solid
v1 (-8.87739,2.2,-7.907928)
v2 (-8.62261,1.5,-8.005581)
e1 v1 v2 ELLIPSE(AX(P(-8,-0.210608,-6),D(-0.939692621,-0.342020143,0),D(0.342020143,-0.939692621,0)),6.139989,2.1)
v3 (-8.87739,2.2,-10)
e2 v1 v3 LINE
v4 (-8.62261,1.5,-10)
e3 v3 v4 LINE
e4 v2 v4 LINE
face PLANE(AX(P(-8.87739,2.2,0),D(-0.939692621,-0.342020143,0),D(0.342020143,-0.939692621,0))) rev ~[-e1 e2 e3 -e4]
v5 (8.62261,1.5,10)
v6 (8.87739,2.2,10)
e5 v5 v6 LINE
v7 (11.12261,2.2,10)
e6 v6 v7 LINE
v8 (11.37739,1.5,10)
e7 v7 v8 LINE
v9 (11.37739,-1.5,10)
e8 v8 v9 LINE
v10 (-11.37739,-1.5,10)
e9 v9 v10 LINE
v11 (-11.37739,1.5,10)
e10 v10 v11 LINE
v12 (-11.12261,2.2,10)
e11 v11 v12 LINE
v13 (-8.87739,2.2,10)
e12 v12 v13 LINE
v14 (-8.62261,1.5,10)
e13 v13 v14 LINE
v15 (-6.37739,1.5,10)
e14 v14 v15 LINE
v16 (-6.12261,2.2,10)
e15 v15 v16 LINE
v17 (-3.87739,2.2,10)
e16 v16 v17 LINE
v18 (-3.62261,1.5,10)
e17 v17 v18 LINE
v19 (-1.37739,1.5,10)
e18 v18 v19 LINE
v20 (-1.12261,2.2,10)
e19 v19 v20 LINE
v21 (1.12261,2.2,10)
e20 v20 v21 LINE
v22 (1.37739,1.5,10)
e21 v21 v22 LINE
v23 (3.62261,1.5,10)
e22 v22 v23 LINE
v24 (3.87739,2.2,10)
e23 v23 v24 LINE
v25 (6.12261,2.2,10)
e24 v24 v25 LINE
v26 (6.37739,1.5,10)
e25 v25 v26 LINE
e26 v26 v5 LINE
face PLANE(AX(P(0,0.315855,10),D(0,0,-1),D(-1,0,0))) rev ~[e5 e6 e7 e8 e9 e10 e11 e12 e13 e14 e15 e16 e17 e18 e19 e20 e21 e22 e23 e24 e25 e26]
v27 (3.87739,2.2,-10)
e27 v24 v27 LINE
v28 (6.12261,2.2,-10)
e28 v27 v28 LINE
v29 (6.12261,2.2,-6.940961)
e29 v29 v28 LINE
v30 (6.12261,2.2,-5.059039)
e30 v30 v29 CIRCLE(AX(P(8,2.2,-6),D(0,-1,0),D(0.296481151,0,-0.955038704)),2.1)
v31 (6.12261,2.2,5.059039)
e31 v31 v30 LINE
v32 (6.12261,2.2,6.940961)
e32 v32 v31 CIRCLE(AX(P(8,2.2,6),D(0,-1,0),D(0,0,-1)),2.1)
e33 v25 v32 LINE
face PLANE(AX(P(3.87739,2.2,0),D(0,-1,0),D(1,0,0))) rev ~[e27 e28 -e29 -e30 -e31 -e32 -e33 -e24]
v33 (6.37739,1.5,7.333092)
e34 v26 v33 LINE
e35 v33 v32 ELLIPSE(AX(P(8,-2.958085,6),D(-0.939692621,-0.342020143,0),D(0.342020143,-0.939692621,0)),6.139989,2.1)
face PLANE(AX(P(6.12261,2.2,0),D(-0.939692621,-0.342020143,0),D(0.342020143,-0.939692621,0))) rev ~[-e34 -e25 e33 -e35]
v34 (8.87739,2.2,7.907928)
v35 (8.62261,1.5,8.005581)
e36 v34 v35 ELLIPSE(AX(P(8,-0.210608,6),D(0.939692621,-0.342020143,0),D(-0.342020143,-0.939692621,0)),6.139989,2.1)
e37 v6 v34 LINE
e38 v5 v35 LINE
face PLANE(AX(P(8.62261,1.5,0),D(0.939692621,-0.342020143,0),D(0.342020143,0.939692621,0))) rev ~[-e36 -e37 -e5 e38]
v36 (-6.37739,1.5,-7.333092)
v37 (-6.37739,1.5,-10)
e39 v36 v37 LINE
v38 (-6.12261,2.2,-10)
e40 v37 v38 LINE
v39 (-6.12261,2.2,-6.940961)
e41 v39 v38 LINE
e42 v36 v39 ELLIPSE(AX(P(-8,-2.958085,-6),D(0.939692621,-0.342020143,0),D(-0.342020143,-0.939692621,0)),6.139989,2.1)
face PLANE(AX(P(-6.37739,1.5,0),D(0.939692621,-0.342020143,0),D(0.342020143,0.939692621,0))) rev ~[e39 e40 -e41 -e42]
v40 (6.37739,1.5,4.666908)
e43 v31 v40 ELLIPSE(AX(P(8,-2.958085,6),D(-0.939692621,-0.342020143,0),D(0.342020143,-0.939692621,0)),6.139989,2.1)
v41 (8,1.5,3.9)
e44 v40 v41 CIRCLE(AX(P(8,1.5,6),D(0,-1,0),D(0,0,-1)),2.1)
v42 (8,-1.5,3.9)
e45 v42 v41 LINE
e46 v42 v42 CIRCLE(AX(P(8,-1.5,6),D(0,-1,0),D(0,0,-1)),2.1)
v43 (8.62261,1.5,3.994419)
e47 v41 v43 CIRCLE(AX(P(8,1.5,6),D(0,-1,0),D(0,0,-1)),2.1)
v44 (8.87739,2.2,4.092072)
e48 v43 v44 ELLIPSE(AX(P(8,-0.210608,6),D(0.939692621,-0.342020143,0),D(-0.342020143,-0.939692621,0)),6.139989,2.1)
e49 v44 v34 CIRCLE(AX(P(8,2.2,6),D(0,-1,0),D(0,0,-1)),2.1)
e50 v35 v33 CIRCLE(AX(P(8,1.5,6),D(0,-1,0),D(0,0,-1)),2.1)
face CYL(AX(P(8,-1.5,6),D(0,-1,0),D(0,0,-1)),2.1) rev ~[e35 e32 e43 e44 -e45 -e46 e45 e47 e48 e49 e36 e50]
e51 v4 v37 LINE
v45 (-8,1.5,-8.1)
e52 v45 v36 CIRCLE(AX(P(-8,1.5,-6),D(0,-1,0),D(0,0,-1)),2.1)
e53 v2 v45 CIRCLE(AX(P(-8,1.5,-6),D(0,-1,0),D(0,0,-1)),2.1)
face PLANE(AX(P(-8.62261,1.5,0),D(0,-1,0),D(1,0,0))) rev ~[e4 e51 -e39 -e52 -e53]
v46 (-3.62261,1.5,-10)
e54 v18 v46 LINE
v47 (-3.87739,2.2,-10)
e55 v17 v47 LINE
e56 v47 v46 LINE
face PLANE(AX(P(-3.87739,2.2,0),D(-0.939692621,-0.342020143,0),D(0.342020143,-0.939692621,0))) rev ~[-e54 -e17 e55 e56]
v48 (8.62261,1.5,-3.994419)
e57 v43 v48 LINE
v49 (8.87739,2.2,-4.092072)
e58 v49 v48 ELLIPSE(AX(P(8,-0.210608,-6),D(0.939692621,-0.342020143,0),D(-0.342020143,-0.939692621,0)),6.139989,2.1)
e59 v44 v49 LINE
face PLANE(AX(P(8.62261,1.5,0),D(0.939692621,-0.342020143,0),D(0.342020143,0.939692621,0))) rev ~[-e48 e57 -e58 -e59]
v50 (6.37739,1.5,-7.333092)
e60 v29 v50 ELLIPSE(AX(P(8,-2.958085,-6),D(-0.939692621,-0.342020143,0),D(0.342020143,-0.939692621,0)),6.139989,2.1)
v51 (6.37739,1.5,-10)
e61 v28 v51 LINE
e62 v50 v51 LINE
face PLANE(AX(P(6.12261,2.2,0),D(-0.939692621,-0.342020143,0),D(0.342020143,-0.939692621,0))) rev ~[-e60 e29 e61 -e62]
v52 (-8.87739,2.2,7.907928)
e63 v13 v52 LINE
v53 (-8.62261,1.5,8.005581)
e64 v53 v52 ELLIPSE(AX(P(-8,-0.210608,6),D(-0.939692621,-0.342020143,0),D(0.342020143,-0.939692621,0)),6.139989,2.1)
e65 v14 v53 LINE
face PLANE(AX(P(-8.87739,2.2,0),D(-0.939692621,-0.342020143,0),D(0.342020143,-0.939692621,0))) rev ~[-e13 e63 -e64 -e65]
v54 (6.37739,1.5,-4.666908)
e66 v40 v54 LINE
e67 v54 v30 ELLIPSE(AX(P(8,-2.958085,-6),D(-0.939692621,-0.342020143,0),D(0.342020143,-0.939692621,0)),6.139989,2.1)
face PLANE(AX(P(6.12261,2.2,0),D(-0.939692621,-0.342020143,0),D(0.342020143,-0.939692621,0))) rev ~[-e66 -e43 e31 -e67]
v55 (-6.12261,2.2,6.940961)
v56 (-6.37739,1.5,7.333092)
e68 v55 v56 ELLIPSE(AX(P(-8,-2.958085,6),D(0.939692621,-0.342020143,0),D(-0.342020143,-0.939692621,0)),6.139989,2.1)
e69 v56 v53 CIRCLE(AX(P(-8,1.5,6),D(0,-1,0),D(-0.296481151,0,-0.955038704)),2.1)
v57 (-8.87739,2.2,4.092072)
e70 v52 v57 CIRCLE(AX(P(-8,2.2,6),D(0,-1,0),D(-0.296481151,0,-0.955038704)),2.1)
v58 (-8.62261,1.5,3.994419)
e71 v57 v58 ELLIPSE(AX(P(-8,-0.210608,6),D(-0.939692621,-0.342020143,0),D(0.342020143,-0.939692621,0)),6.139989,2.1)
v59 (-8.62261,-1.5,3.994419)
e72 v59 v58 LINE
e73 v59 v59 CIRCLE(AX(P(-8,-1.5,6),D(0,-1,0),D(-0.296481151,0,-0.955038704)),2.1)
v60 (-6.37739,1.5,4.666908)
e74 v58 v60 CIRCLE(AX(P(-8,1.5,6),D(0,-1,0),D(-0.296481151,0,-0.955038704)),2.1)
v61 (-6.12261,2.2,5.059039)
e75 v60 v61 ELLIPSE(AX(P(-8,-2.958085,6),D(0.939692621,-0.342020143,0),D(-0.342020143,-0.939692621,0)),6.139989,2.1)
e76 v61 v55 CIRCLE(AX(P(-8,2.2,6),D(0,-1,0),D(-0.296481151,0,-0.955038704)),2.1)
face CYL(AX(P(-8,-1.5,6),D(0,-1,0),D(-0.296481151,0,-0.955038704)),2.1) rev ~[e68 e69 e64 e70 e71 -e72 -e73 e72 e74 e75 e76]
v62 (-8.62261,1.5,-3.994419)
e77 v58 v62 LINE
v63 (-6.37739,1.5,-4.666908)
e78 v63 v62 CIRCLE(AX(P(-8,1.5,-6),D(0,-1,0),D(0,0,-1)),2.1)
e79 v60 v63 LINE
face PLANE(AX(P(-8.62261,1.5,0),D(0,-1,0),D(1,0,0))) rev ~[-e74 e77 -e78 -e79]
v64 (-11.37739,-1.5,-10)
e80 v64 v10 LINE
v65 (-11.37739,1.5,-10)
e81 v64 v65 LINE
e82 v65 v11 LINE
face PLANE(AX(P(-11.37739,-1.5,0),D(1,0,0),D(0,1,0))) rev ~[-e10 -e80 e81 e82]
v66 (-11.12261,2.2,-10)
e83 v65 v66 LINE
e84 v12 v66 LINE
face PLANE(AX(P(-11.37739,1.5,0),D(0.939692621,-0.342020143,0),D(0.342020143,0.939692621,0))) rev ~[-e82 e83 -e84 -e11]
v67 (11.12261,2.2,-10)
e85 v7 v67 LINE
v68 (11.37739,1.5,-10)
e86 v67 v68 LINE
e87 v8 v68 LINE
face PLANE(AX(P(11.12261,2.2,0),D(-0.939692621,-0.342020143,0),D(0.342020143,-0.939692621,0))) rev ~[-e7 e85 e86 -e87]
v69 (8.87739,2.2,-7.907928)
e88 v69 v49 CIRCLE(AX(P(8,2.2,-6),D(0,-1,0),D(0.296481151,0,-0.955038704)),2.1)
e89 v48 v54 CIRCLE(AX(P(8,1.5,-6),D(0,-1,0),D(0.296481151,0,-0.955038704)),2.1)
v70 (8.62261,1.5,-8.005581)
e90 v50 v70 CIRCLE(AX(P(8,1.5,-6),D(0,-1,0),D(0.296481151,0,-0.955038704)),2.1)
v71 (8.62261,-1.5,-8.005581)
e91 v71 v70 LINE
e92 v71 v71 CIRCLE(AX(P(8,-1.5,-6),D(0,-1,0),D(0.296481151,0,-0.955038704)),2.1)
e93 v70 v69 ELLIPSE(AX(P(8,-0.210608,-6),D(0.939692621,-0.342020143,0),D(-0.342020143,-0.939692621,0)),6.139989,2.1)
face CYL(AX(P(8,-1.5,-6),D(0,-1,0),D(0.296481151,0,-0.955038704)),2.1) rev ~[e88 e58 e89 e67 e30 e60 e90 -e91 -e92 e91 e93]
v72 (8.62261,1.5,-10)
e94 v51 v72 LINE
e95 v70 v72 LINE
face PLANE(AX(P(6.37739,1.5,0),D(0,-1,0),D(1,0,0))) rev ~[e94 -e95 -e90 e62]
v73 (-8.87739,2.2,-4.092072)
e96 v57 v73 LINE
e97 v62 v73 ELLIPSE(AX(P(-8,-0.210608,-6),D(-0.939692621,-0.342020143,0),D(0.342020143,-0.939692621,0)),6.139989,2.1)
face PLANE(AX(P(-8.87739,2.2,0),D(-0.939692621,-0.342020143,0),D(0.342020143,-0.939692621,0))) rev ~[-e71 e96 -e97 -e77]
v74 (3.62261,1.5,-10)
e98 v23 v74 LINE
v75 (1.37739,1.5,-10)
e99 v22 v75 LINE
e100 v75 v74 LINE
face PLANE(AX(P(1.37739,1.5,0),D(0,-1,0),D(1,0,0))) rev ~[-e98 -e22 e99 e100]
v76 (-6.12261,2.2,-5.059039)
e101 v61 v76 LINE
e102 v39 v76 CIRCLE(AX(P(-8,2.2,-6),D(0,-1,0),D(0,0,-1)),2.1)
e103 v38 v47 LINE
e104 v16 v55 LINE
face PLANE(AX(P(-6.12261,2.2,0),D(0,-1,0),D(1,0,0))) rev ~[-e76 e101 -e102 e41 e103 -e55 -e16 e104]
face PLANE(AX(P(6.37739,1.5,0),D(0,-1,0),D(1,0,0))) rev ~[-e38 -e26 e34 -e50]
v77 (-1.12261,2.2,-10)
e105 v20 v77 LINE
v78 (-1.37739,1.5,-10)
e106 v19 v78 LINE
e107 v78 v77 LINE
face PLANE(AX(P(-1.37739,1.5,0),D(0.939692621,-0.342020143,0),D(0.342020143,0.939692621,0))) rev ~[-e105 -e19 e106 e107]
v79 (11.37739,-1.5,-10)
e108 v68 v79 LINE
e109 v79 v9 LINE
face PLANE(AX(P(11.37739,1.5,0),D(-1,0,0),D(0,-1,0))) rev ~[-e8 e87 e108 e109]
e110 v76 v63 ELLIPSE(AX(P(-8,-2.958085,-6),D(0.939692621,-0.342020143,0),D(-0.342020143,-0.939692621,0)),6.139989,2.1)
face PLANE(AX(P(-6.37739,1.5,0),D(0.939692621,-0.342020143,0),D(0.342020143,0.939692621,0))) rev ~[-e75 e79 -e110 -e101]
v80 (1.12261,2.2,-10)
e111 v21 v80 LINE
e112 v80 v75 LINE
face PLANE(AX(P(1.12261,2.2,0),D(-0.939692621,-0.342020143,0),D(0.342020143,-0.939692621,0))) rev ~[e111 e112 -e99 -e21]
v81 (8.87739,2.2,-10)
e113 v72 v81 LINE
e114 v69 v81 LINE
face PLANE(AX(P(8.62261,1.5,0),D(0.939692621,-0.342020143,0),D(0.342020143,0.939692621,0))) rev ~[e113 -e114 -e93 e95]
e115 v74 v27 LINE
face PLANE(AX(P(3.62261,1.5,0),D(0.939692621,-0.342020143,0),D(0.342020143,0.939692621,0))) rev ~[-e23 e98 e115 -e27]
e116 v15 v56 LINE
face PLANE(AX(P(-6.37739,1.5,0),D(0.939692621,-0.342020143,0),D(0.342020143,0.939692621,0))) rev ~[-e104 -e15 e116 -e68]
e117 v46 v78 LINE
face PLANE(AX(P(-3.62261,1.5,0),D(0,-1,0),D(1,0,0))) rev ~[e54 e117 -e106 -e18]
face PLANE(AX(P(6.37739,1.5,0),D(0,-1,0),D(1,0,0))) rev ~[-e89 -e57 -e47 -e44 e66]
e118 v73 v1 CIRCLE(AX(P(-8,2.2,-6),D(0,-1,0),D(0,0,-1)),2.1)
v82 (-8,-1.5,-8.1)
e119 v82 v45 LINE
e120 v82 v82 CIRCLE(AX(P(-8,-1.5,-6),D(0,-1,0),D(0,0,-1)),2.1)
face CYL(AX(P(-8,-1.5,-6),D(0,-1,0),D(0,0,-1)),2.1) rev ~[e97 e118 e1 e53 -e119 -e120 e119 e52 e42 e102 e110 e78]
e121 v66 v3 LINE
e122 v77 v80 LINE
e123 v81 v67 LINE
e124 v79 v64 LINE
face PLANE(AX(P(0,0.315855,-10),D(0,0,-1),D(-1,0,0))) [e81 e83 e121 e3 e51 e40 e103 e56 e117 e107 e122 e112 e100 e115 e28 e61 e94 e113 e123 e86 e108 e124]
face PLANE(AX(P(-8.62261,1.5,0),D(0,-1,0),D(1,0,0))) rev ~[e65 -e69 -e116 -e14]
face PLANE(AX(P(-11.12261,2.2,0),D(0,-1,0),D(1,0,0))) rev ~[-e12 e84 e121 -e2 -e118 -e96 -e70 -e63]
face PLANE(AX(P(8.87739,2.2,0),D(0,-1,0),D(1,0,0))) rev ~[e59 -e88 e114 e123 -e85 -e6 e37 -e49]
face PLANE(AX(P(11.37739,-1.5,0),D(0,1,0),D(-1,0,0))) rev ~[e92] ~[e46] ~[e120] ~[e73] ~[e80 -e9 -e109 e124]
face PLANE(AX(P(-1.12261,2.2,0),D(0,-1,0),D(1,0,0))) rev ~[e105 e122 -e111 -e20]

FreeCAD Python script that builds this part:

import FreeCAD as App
import Part
import Sketcher

V = App.Vector
Q = App.Units.Quantity

doc = App.newDocument("Part")
body = doc.addObject("PartDesign::Body", "Body")

# Sketch on XY plane
sketch1 = doc.addObject("Sketcher::SketchObject", "Sketch")
body.addObject(sketch1)
sketch1.AttachmentSupport = (doc.XY_Plane, [""])
sketch1.MapMode = "FlatFace"
sketch1.addGeometry(Part.LineSegment(V(-11.12261, 2.2, 0), V(-11.37739, 1.5, 0)), False)
sketch1.addGeometry(Part.LineSegment(V(-11.37739, 1.5, 0), V(-11.37739, -1.5, 0)), False)
sketch1.addGeometry(Part.LineSegment(V(-11.37739, -1.5, 0), V(11.37739, -1.5, 0)), False)
sketch1.addGeometry(Part.LineSegment(V(11.37739, -1.5, 0), V(11.37739, 1.5, 0)), False)
sketch1.addGeometry(Part.LineSegment(V(11.37739, 1.5, 0), V(11.12261, 2.2, 0)), False)
sketch1.addGeometry(Part.LineSegment(V(11.12261, 2.2, 0), V(8.87739, 2.2, 0)), False)
sketch1.addGeometry(Part.LineSegment(V(8.87739, 2.2, 0), V(8.62261, 1.5, 0)), False)
sketch1.addGeometry(Part.LineSegment(V(8.62261, 1.5, 0), V(6.37739, 1.5, 0)), False)
sketch1.addGeometry(Part.LineSegment(V(6.37739, 1.5, 0), V(6.12261, 2.2, 0)), False)
sketch1.addGeometry(Part.LineSegment(V(6.12261, 2.2, 0), V(3.87739, 2.2, 0)), False)
sketch1.addGeometry(Part.LineSegment(V(3.87739, 2.2, 0), V(3.62261, 1.5, 0)), False)
sketch1.addGeometry(Part.LineSegment(V(3.62261, 1.5, 0), V(1.37739, 1.5, 0)), False)
sketch1.addGeometry(Part.LineSegment(V(1.37739, 1.5, 0), V(1.12261, 2.2, 0)), False)
sketch1.addGeometry(Part.LineSegment(V(1.12261, 2.2, 0), V(-1.12261, 2.2, 0)), False)
sketch1.addGeometry(Part.LineSegment(V(-1.12261, 2.2, 0), V(-1.37739, 1.5, 0)), False)
sketch1.addGeometry(Part.LineSegment(V(-1.37739, 1.5, 0), V(-3.62261, 1.5, 0)), False)
sketch1.addGeometry(Part.LineSegment(V(-3.62261, 1.5, 0), V(-3.87739, 2.2, 0)), False)
sketch1.addGeometry(Part.LineSegment(V(-3.87739, 2.2, 0), V(-6.12261, 2.2, 0)), False)
sketch1.addGeometry(Part.LineSegment(V(-6.12261, 2.2, 0), V(-6.37739, 1.5, 0)), False)
sketch1.addGeometry(Part.LineSegment(V(-6.37739, 1.5, 0), V(-8.62261, 1.5, 0)), False)
sketch1.addGeometry(Part.LineSegment(V(-8.62261, 1.5, 0), V(-8.87739, 2.2, 0)), False)
sketch1.addGeometry(Part.LineSegment(V(-8.87739, 2.2, 0), V(-11.12261, 2.2, 0)), False)
sketch1.addConstraint(Sketcher.Constraint("Coincident", 0, 2, 1, 1))
sketch1.addConstraint(Sketcher.Constraint("Coincident", 1, 2, 2, 1))
sketch1.addConstraint(Sketcher.Constraint("Coincident", 2, 2, 3, 1))
sketch1.addConstraint(Sketcher.Constraint("Coincident", 3, 2, 4, 1))
sketch1.addConstraint(Sketcher.Constraint("Coincident", 4, 2, 5, 1))
sketch1.addConstraint(Sketcher.Constraint("Coincident", 5, 2, 6, 1))
sketch1.addConstraint(Sketcher.Constraint("Coincident", 6, 2, 7, 1))
sketch1.addConstraint(Sketcher.Constraint("Coincident", 7, 2, 8, 1))
sketch1.addConstraint(Sketcher.Constraint("Coincident", 8, 2, 9, 1))
sketch1.addConstraint(Sketcher.Constraint("Coincident", 9, 2, 10, 1))
sketch1.addConstraint(Sketcher.Constraint("Coincident", 10, 2, 11, 1))
sketch1.addConstraint(Sketcher.Constraint("Coincident", 11, 2, 12, 1))
sketch1.addConstraint(Sketcher.Constraint("Coincident", 12, 2, 13, 1))
sketch1.addConstraint(Sketcher.Constraint("Coincident", 13, 2, 14, 1))
sketch1.addConstraint(Sketcher.Constraint("Coincident", 14, 2, 15, 1))
sketch1.addConstraint(Sketcher.Constraint("Coincident", 15, 2, 16, 1))
sketch1.addConstraint(Sketcher.Constraint("Coincident", 16, 2, 17, 1))
sketch1.addConstraint(Sketcher.Constraint("Coincident", 17, 2, 18, 1))
sketch1.addConstraint(Sketcher.Constraint("Coincident", 18, 2, 19, 1))
sketch1.addConstraint(Sketcher.Constraint("Coincident", 19, 2, 20, 1))
sketch1.addConstraint(Sketcher.Constraint("Coincident", 20, 2, 21, 1))
sketch1.addConstraint(Sketcher.Constraint("Coincident", 21, 2, 0, 1))
sketch1.addConstraint(Sketcher.Constraint("Vertical", 1))
sketch1.addConstraint(Sketcher.Constraint("Horizontal", 2))
sketch1.addConstraint(Sketcher.Constraint("Vertical", 3))
sketch1.addConstraint(Sketcher.Constraint("Horizontal", 5))
sketch1.addConstraint(Sketcher.Constraint("Horizontal", 7))
sketch1.addConstraint(Sketcher.Constraint("Horizontal", 9))
sketch1.addConstraint(Sketcher.Constraint("Horizontal", 11))
sketch1.addConstraint(Sketcher.Constraint("Horizontal", 13))
sketch1.addConstraint(Sketcher.Constraint("Horizontal", 15))
sketch1.addConstraint(Sketcher.Constraint("Horizontal", 17))
sketch1.addConstraint(Sketcher.Constraint("Horizontal", 19))
sketch1.addConstraint(Sketcher.Constraint("Horizontal", 21))
sketch1.addConstraint(Sketcher.Constraint("Symmetric", 0, 2, 2, 2, -1, 1))
sketch1.addConstraint(Sketcher.Constraint("Symmetric", 11, 2, 14, 2, -2))
sketch1.addConstraint(Sketcher.Constraint("Symmetric", 9, 2, 16, 2, -2))
sketch1.addConstraint(Sketcher.Constraint("Symmetric", 7, 2, 18, 2, -2))
sketch1.addConstraint(Sketcher.Constraint("Symmetric", 5, 2, 20, 2, -2))
sketch1.addConstraint(Sketcher.Constraint("Parallel", 0, 6))
sketch1.addConstraint(Sketcher.Constraint("Parallel", 4, 8))
sketch1.addConstraint(Sketcher.Constraint("Parallel", 6, 10))
sketch1.addConstraint(Sketcher.Constraint("Parallel", 8, 12))
sketch1.addConstraint(Sketcher.Constraint("Parallel", 10, 14))
sketch1.addConstraint(Sketcher.Constraint("Parallel", 12, 16))
sketch1.addConstraint(Sketcher.Constraint("Parallel", 14, 18))
sketch1.addConstraint(Sketcher.Constraint("Parallel", 16, 20))
sketch1.addConstraint(Sketcher.Constraint("Horizontal", 0, 2, 3, 2))
sketch1.addConstraint(Sketcher.Constraint("Horizontal", 3, 2, 6, 2))
sketch1.addConstraint(Sketcher.Constraint("Horizontal", 5, 2, 8, 2))
sketch1.addConstraint(Sketcher.Constraint("Horizontal", 7, 2, 10, 2))
sketch1.addConstraint(Sketcher.Constraint("Horizontal", 9, 2, 12, 2))
sketch1.addConstraint(Sketcher.Constraint("Equal", 5, 7))
sketch1.addConstraint(Sketcher.Constraint("Equal", 7, 9))
sketch1.addConstraint(Sketcher.Constraint("Equal", 9, 11))
sketch1.addConstraint(Sketcher.Constraint("Equal", 11, 13))
sketch1.addConstraint(Sketcher.Constraint("Equal", 13, 15))
sketch1.addConstraint(Sketcher.Constraint("DistanceY", 1, 2, 1, 1, 3.0))
sketch1.addConstraint(Sketcher.Constraint("Angle", 0, Q("-110 deg")))
sketch1.addConstraint(Sketcher.Constraint("DistanceX", 0, 2, 6, 2, 20.0))
sketch1.addConstraint(Sketcher.Constraint("DistanceY", -1, 1, 4, 2, 2.2))
pad1 = doc.addObject("PartDesign::Pad", "Pad")
body.addObject(pad1)
pad1.Profile = sketch1
pad1.Length = 20
pad1.Midplane = True

# Sketch on XZ plane
sketch2 = doc.addObject("Sketcher::SketchObject", "Sketch001")
body.addObject(sketch2)
sketch2.AttachmentSupport = (doc.XZ_Plane, [""])
sketch2.MapMode = "FlatFace"
sketch2.AttachmentOffset = App.Placement(V(0, 0, 1.5), App.Rotation())
sketch2.addGeometry(Part.Circle(V(-8, -6, 0), V(0, 0, 1), 2.1), False)
sketch2.addGeometry(Part.Circle(V(8, -6, 0), V(0, 0, 1), 2.1), False)
sketch2.addGeometry(Part.Circle(V(8, 6, 0), V(0, 0, 1), 2.1), False)
sketch2.addGeometry(Part.Circle(V(-8, 6, 0), V(0, 0, 1), 2.1), False)
sketch2.addConstraint(Sketcher.Constraint("Equal", 0, 1))
sketch2.addConstraint(Sketcher.Constraint("Equal", 1, 2))
sketch2.addConstraint(Sketcher.Constraint("Equal", 2, 3))
sketch2.addConstraint(Sketcher.Constraint("Symmetric", 0, 3, 2, 3, -1, 1))
sketch2.addConstraint(Sketcher.Constraint("Symmetric", 1, 3, 3, 3, -1, 1))
sketch2.addConstraint(Sketcher.Constraint("Symmetric", 0, 3, 1, 3, -2))
sketch2.addConstraint(Sketcher.Constraint("Diameter", 0, 4.2))
sketch2.addConstraint(Sketcher.Constraint("DistanceX", 0, 3, -1, 1, 8.0))
sketch2.addConstraint(Sketcher.Constraint("DistanceY", 0, 3, -1, 1, 6.0))
pocket1 = doc.addObject("PartDesign::Pocket", "Pocket")
body.addObject(pocket1)
pocket1.Profile = sketch2
pocket1.Type = "ThroughAll"

doc.recompute()
